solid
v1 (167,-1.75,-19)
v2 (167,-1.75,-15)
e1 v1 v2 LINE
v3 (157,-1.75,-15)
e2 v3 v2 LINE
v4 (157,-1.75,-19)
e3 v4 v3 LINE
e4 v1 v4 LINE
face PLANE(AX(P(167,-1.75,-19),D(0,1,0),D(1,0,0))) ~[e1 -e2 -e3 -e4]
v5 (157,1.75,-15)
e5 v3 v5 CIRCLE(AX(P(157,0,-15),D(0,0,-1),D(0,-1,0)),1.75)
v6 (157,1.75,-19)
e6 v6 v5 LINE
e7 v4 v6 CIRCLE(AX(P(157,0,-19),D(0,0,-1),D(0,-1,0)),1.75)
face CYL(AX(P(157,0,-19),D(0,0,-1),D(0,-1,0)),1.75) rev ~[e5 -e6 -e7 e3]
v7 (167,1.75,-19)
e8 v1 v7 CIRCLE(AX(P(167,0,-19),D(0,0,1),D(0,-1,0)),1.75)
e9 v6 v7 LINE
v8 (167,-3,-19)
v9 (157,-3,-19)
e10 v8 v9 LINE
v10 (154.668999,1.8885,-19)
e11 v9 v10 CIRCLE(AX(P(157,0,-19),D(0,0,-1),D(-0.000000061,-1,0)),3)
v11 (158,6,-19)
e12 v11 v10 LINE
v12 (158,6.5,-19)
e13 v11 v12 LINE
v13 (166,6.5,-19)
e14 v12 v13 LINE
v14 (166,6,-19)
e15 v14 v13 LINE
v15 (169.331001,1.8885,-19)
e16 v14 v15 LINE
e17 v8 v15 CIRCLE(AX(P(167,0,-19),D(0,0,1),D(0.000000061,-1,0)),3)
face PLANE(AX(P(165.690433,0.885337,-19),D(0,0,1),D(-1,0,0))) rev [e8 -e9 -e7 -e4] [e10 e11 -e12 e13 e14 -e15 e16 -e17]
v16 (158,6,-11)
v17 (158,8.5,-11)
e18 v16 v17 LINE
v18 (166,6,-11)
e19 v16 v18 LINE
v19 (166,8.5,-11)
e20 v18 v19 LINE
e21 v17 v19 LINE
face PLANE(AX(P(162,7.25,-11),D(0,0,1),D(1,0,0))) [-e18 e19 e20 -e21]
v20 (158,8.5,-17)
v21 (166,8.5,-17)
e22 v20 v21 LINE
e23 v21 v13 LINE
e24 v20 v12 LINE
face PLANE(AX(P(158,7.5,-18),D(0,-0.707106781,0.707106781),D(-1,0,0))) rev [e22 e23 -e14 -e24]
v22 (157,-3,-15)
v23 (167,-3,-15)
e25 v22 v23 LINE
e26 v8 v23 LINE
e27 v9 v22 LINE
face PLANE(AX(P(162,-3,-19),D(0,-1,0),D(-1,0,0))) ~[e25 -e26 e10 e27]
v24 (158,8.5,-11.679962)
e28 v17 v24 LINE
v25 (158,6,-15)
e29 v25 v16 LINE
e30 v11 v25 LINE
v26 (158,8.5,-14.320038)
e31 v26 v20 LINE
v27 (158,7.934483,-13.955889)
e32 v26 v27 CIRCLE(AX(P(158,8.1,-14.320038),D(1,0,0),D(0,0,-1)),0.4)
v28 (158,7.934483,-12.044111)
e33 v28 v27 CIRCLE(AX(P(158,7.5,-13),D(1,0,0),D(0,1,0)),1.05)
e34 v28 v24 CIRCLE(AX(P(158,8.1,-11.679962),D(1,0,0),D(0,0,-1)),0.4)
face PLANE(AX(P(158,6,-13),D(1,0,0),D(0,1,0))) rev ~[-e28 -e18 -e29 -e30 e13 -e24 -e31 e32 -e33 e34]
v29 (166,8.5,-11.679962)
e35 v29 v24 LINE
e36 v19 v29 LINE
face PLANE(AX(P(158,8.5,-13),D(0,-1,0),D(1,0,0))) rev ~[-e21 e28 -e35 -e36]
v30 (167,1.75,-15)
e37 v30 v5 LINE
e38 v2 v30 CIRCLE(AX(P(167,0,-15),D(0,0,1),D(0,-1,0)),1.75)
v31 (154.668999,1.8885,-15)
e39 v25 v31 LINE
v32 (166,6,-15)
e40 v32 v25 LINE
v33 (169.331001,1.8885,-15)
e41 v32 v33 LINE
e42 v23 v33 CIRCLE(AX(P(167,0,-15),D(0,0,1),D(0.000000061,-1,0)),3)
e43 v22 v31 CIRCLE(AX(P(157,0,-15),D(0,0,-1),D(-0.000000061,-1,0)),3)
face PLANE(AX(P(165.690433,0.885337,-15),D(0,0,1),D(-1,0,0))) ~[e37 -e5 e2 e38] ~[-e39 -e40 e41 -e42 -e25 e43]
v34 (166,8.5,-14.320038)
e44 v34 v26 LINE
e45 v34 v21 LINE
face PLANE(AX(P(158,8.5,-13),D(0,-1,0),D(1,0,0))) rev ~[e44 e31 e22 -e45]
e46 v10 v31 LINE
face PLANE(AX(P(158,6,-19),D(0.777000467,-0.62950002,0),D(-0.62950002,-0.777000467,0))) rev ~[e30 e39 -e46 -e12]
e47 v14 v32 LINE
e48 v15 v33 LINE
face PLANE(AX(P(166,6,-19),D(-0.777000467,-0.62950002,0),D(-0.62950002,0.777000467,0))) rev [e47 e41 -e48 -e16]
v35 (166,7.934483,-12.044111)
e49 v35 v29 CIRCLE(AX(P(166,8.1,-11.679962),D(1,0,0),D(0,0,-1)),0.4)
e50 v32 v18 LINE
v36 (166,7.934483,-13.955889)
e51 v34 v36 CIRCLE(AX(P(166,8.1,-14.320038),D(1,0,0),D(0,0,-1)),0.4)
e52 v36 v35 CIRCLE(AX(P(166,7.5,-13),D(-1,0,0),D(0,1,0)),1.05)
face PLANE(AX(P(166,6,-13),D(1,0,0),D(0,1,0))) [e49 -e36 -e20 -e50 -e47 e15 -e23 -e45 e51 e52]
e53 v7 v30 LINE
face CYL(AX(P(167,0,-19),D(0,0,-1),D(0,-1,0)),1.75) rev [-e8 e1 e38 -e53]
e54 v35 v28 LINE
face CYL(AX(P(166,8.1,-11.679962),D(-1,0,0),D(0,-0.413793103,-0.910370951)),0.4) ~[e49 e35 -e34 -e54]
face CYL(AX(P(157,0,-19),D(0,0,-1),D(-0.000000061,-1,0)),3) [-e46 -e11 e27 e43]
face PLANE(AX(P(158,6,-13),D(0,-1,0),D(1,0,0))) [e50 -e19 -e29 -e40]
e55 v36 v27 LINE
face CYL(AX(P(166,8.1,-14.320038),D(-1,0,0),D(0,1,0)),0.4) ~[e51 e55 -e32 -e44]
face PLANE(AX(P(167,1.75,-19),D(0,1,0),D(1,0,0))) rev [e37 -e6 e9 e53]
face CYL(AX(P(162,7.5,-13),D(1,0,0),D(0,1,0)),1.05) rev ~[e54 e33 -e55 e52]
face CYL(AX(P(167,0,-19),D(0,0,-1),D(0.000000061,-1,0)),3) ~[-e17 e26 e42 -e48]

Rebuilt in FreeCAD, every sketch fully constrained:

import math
import FreeCAD as App
import Part
import Sketcher
from FreeCAD import Vector
Q = App.Units.Quantity


def edges_at(feature, points):
    """Names of the edges that pass closest to the given points."""
    edges = feature.Shape.Edges
    near = lambda p: min(range(len(edges)), key=lambda i: edges[i].distToShape(Part.Vertex(*p))[0])
    return sorted({f"Edge{near(p) + 1}" for p in points})

doc = App.newDocument("Part")
body = doc.addObject("PartDesign::Body", "Body")

sketch1 = body.newObject("Sketcher::SketchObject", "Sketch")
sketch1.AttachmentSupport = (doc.getObject("XY_Plane"), [""])
sketch1.MapMode = "FlatFace"
sketch1.addGeometry(Part.LineSegment(Vector(-4, 1, 0), Vector(-4, -1.5, 0)), False)
sketch1.addGeometry(Part.LineSegment(Vector(-4, -1.5, 0), Vector(4, -1.5, 0)), False)
sketch1.addGeometry(Part.LineSegment(Vector(4, -1.5, 0), Vector(4, 1, 0)), False)
sketch1.addGeometry(Part.LineSegment(Vector(4, 1, 0), Vector(-4, 1, 0)), False)
sketch1.addConstraint(Sketcher.Constraint("Coincident", 0, 2, 1, 1))
sketch1.addConstraint(Sketcher.Constraint("Coincident", 1, 2, 2, 1))
sketch1.addConstraint(Sketcher.Constraint("Coincident", 2, 2, 3, 1))
sketch1.addConstraint(Sketcher.Constraint("Coincident", 3, 2, 0, 1))
sketch1.addConstraint(Sketcher.Constraint("Vertical", 0))
sketch1.addConstraint(Sketcher.Constraint("Horizontal", 1))
sketch1.addConstraint(Sketcher.Constraint("Vertical", 2))
sketch1.addConstraint(Sketcher.Constraint("Horizontal", 3))
sketch1.addConstraint(Sketcher.Constraint("DistanceX", 1, 1, 1, 2, Q("8 mm")))
sketch1.addConstraint(Sketcher.Constraint("DistanceY", 0, 2, 0, 1, Q("2.5 mm")))
sketch1.addConstraint(Sketcher.Constraint("DistanceX", 0, 2, -1, 1, Q("4 mm")))
sketch1.addConstraint(Sketcher.Constraint("DistanceY", -1, 1, 2, 2, Q("1 mm")))
pad1 = body.newObject("PartDesign::Pad", "Pad")
pad1.Profile = sketch1
pad1.Type = "TwoLengths"
pad1.Length = 2
pad1.Length2 = 6

sketch2 = body.newObject("Sketcher::SketchObject", "Sketch001")
sketch2.AttachmentSupport = (doc.getObject("YZ_Plane"), [""])
sketch2.MapMode = "FlatFace"
sketch2.addGeometry(Part.Circle(Vector(0, 0, 0), Vector(0, 0, 1), 1.05), False)
sketch2.addConstraint(Sketcher.Constraint("Coincident", 0, 3, -1, 1))
sketch2.addConstraint(Sketcher.Constraint("Diameter", 0, Q("2.1 mm")))
pocket1 = body.newObject("PartDesign::Pocket", "Pocket")
pocket1.Profile = sketch2
pocket1.Type = "ThroughAll"
pocket1.Midplane = True

sketch3 = body.newObject("Sketcher::SketchObject", "Sketch002")
sketch3.AttachmentSupport = (doc.getObject("XY_Plane"), [""])
sketch3.MapMode = "FlatFace"
sketch3.AttachmentOffset = App.Placement(Vector(0, 0, -6), App.Rotation())
sketch3.addGeometry(Part.ArcOfCircle(Part.Circle(Vector(-5, -7.5, 0), Vector(0, 0, 1), 1.75), math.radians(90), math.radians(270)), False)
sketch3.addGeometry(Part.LineSegment(Vector(-5, -9.25, 0), Vector(0, -9.25, 0)), False)
sketch3.addGeometry(Part.LineSegment(Vector(0, -9.25, 0), Vector(0, -10.5, 0)), False)
sketch3.addGeometry(Part.LineSegment(Vector(0, -10.5, 0), Vector(-5, -10.5, 0)), False)
sketch3.addGeometry(Part.ArcOfCircle(Part.Circle(Vector(-5, -7.5, 0), Vector(0, 0, 1), 3), math.radians(140.986752), math.radians(269.999997)), False)
sketch3.addGeometry(Part.LineSegment(Vector(-7.331001, -5.6115, 0), Vector(-4, -1.5, 0)), False)
sketch3.addGeometry(Part.LineSegment(Vector(-4, -1.5, 0), Vector(0, -1.5, 0)), False)
sketch3.addGeometry(Part.LineSegment(Vector(0, -1.5, 0), Vector(0, -5.75, 0)), False)
sketch3.addGeometry(Part.LineSegment(Vector(0, -5.75, 0), Vector(-5, -5.75, 0)), False)
sketch3.addConstraint(Sketcher.Constraint("Tangent", 0, 2, 1, 1))
sketch3.addConstraint(Sketcher.Constraint("Coincident", 1, 2, 2, 1))
sketch3.addConstraint(Sketcher.Constraint("Coincident", 2, 2, 3, 1))
sketch3.addConstraint(Sketcher.Constraint("Tangent", 3, 2, 4, 2))
sketch3.addConstraint(Sketcher.Constraint("Tangent", 4, 1, 5, 1))
sketch3.addConstraint(Sketcher.Constraint("Coincident", 5, 2, 6, 1))
sketch3.addConstraint(Sketcher.Constraint("Coincident", 6, 2, 7, 1))
sketch3.addConstraint(Sketcher.Constraint("Coincident", 7, 2, 8, 1))
sketch3.addConstraint(Sketcher.Constraint("Tangent", 8, 2, 0, 1))
sketch3.addConstraint(Sketcher.Constraint("Horizontal", 1))
sketch3.addConstraint(Sketcher.Constraint("Vertical", 2))
sketch3.addConstraint(Sketcher.Constraint("Horizontal", 3))
sketch3.addConstraint(Sketcher.Constraint("Horizontal", 6))
sketch3.addConstraint(Sketcher.Constraint("Vertical", 7))
sketch3.addConstraint(Sketcher.Constraint("Horizontal", 8))
sketch3.addConstraint(Sketcher.Constraint("Coincident", 4, 3, 0, 3))
sketch3.addConstraint(Sketcher.Constraint("PointOnObject", 1, 2, -2))
sketch3.addConstraint(Sketcher.Constraint("PointOnObject", 6, 2, -2))
sketch3.addConstraint(Sketcher.Constraint("Radius", 4, Q("3 mm")))
sketch3.addConstraint(Sketcher.Constraint("DistanceX", 1, 1, 1, 2, Q("5 mm")))
sketch3.addConstraint(Sketcher.Constraint("DistanceX", 6, 1, 6, 2, Q("4 mm")))
sketch3.addConstraint(Sketcher.Constraint("Radius", 0, Q("1.75 mm")))
sketch3.addConstraint(Sketcher.Constraint("DistanceY", 0, 3, 5, 2, Q("6 mm")))
sketch3.addConstraint(Sketcher.Constraint("DistanceY", 0, 3, -1, 1, Q("7.5 mm")))
pad2 = body.newObject("PartDesign::Pad", "Pad001")
pad2.Profile = sketch3
pad2.Length = 4
doc.recompute()

mirrored = body.newObject("PartDesign::Mirrored", "Mirrored")
mirrored.Originals = [pad2]
mirrored.MirrorPlane = (doc.getObject("YZ_Plane"), [""])
body.Tip = mirrored
doc.recompute()

fillet = body.newObject("PartDesign::Fillet", "Fillet")
fillet.Base = (mirrored, edges_at(mirrored, [(0, 1, 0.32), (0, 1, -0.32)]))
fillet.Radius = 0.4
doc.recompute()

chamfer = body.newObject("PartDesign::Chamfer", "Chamfer")
chamfer.Base = (fillet, edges_at(fillet, [(0, 1, -6)]))
chamfer.Size = 2
body2 = doc.addObject("PartDesign::Body", "Body001")
doc.recompute()

body.Placement = App.Placement(Vector(162, 7.5, -13), App.Rotation(Vector(0, 0, 1), 0))
boolean = body2.newObject("PartDesign::Boolean", "Boolean")
boolean.Type = "Fuse"
boolean.addObjects([body])

doc.recompute()
